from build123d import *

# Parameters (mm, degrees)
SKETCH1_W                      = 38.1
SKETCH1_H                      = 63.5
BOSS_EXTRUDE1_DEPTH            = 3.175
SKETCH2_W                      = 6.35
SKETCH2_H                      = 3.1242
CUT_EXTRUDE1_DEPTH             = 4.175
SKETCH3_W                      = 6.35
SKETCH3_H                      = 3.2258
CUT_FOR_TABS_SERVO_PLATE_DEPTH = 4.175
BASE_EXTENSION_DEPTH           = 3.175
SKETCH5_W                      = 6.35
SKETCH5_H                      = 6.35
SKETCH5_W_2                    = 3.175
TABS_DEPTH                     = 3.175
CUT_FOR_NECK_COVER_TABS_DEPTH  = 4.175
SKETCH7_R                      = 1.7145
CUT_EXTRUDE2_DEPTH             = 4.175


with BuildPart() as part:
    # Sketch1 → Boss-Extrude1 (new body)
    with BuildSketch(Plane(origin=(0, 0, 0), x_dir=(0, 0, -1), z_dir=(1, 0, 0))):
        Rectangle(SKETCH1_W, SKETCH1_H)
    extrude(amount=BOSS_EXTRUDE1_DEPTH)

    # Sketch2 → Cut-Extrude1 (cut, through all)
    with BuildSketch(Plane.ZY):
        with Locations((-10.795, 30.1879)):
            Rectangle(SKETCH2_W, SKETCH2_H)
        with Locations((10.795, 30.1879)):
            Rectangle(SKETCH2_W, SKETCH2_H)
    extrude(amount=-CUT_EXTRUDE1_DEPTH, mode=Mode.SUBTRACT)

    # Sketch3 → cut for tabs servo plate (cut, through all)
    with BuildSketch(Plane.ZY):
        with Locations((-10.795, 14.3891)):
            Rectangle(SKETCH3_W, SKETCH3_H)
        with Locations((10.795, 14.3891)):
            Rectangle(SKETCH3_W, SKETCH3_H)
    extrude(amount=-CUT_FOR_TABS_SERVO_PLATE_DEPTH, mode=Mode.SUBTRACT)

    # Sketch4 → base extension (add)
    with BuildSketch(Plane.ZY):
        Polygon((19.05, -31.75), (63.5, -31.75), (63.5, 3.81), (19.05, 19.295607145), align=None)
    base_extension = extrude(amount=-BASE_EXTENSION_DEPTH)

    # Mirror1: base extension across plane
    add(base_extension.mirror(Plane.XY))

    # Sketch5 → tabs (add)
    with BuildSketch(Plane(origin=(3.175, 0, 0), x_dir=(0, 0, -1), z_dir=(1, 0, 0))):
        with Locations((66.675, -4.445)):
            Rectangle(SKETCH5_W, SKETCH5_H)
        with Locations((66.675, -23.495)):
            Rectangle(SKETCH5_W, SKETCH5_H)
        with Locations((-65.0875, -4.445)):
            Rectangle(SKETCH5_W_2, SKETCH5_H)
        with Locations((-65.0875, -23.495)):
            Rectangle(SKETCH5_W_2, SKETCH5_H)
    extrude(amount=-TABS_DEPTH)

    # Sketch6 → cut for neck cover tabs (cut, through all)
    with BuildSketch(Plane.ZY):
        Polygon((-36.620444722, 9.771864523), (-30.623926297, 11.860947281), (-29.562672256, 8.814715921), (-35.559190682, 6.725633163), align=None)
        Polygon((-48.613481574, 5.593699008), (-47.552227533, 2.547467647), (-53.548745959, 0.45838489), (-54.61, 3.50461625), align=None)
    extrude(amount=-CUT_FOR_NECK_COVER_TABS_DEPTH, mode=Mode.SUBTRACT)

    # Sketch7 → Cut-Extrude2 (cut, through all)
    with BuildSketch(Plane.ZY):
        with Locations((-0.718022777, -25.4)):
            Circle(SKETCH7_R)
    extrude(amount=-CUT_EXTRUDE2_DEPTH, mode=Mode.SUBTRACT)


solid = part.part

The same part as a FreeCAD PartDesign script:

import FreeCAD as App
import Part
import Sketcher

V = App.Vector
Q = App.Units.Quantity


def add_polygon(sketch, points):
    """Adds a closed chain of lines whose ends are joined by coincident constraints."""
    first, n = sketch.GeometryCount, len(points)
    for a, b in zip(points, points[1:] + points[:1]):
        sketch.addGeometry(Part.LineSegment(App.Vector(*a, 0), App.Vector(*b, 0)), False)
    for i in range(n):
        sketch.addConstraint(Sketcher.Constraint("Coincident", first + i, 2, first + (i + 1) % n, 1))

doc = App.newDocument("Part")
body = doc.addObject("PartDesign::Body", "Body")

# Sketch on YZ plane
sketch1 = body.newObject("Sketcher::SketchObject", "Sketch")
sketch1.AttachmentSupport = (doc.getObject("YZ_Plane"), [""])
sketch1.MapMode = "FlatFace"
add_polygon(sketch1, [(32, 19), (-32, 19), (-32, -19), (32, -19)])  # lines 0-3
sketch1.addConstraint(Sketcher.Constraint("Horizontal", 0))
sketch1.addConstraint(Sketcher.Constraint("Vertical", 1))
sketch1.addConstraint(Sketcher.Constraint("Horizontal", 2))
sketch1.addConstraint(Sketcher.Constraint("Vertical", 3))
sketch1.addConstraint(Sketcher.Constraint("Symmetric", 0, 2, 2, 2, -1, 1))
sketch1.addConstraint(Sketcher.Constraint("DistanceX", 0, 2, 0, 1, Q("2.5 in")))
sketch1.addConstraint(Sketcher.Constraint("DistanceY", 1, 2, 1, 1, Q("1.5 in")))
pad1 = body.newObject("PartDesign::Pad", "Pad")
pad1.Profile = sketch1
pad1.Length = Q("0.125 in")

# Sketch on YZ plane
sketch2 = body.newObject("Sketcher::SketchObject", "Sketch001")
sketch2.AttachmentSupport = (doc.getObject("YZ_Plane"), [""])
sketch2.MapMode = "FlatFace"
add_polygon(sketch2, [(31.8, -14), (28.6, -14), (28.6, -7.6), (31.8, -7.6)])  # lines 0-3
add_polygon(sketch2, [(31.8, 7.6), (28.6, 7.6), (28.6, 14), (31.8, 14)])  # lines 4-7
sketch2.addConstraint(Sketcher.Constraint("Horizontal", 0))
sketch2.addConstraint(Sketcher.Constraint("Vertical", 1))
sketch2.addConstraint(Sketcher.Constraint("Horizontal", 2))
sketch2.addConstraint(Sketcher.Constraint("Vertical", 3))
sketch2.addConstraint(Sketcher.Constraint("Horizontal", 4))
sketch2.addConstraint(Sketcher.Constraint("Vertical", 5))
sketch2.addConstraint(Sketcher.Constraint("Horizontal", 6))
sketch2.addConstraint(Sketcher.Constraint("Vertical", 7))
sketch2.addConstraint(Sketcher.Constraint("Symmetric", 1, 2, 4, 2, -1))
sketch2.addConstraint(Sketcher.Constraint("Symmetric", 3, 2, 6, 2, -1))
sketch2.addConstraint(Sketcher.Constraint("DistanceY", 1, 1, 1, 2, Q("0.25 in")))
sketch2.addConstraint(Sketcher.Constraint("DistanceY", 1, 2, -1, 1, Q("0.3 in")))
sketch2.addConstraint(Sketcher.Constraint("DistanceX", 0, 2, 0, 1, Q("0.123 in")))
sketch2.addConstraint(Sketcher.Constraint("DistanceX", -1, 1, 2, 2, Q("1.25 in")))
pocket1 = body.newObject("PartDesign::Pocket", "Pocket")
pocket1.Profile = sketch2
pocket1.Type = "ThroughAll"
pocket1.Reversed = True

# Sketch on YZ plane
sketch3 = body.newObject("Sketcher::SketchObject", "Sketch002")
sketch3.AttachmentSupport = (doc.getObject("YZ_Plane"), [""])
sketch3.MapMode = "FlatFace"
add_polygon(sketch3, [(16, -14), (12.8, -14), (12.8, -7.6), (16, -7.6)])  # lines 0-3
add_polygon(sketch3, [(16, 7.6), (12.8, 7.6), (12.8, 14), (16, 14)])  # lines 4-7
sketch3.addConstraint(Sketcher.Constraint("Horizontal", 0))
sketch3.addConstraint(Sketcher.Constraint("Vertical", 1))
sketch3.addConstraint(Sketcher.Constraint("Horizontal", 2))
sketch3.addConstraint(Sketcher.Constraint("Vertical", 3))
sketch3.addConstraint(Sketcher.Constraint("Horizontal", 4))
sketch3.addConstraint(Sketcher.Constraint("Vertical", 5))
sketch3.addConstraint(Sketcher.Constraint("Horizontal", 6))
sketch3.addConstraint(Sketcher.Constraint("Vertical", 7))
sketch3.addConstraint(Sketcher.Constraint("Symmetric", 1, 2, 4, 2, -1))
sketch3.addConstraint(Sketcher.Constraint("Symmetric", 3, 2, 6, 2, -1))
sketch3.addConstraint(Sketcher.Constraint("DistanceY", 1, 1, 1, 2, Q("0.25 in")))
sketch3.addConstraint(Sketcher.Constraint("DistanceY", 1, 2, -1, 1, Q("0.3 in")))
sketch3.addConstraint(Sketcher.Constraint("DistanceX", 0, 2, 0, 1, Q("0.127 in")))
sketch3.addConstraint(Sketcher.Constraint("DistanceX", -1, 1, 2, 2, Q("0.63 in")))
pocket2 = body.newObject("PartDesign::Pocket", "Pocket001")
pocket2.Profile = sketch3
pocket2.Type = "ThroughAll"
pocket2.Reversed = True

# Sketch on YZ plane
sketch4 = body.newObject("Sketcher::SketchObject", "Sketch003")
sketch4.AttachmentSupport = (doc.getObject("YZ_Plane"), [""])
sketch4.MapMode = "FlatFace"
add_polygon(sketch4, [(-32, 19), (-32, 64), (4, 64), (19, 19)])  # lines 0-3
sketch4.addConstraint(Sketcher.Constraint("Vertical", 0))
sketch4.addConstraint(Sketcher.Constraint("Horizontal", 1))
sketch4.addConstraint(Sketcher.Constraint("Horizontal", 3))
sketch4.addConstraint(Sketcher.Constraint("DistanceX", 1, 1, 1, 2, Q("1.4 in")))
sketch4.addConstraint(Sketcher.Constraint("DistanceY", 0, 1, 0, 2, Q("1.75 in")))
sketch4.addConstraint(Sketcher.Constraint("DistanceY", -1, 1, 0, 2, Q("2.5 in")))
sketch4.addConstraint(Sketcher.Constraint("DistanceX", 0, 2, -1, 1, Q("1.25 in")))
sketch4.addConstraint(Sketcher.Constraint("Distance", 2, Q("47.07023 mm")))
pad2 = body.newObject("PartDesign::Pad", "Pad001")
pad2.Profile = sketch4
pad2.Length = Q("0.125 in")
doc.recompute()

mirrored = body.newObject("PartDesign::Mirrored", "Mirrored")
mirrored.Originals = [pad2]
mirrored.MirrorPlane = (doc.getObject("XY_Plane"), [""])
body.Tip = mirrored

# Sketch on YZ plane
sketch5 = body.newObject("Sketcher::SketchObject", "Sketch004")
sketch5.AttachmentSupport = (doc.getObject("YZ_Plane"), [""])
sketch5.MapMode = "FlatFace"
sketch5.AttachmentOffset = App.Placement(V(0, 0, 0.125 * 25.4), App.Rotation())
add_polygon(sketch5, [(-1.3, -63.5), (-7.6, -63.5), (-7.6, -69.8), (-1.3, -69.8)])  # lines 0-3
add_polygon(sketch5, [(-20.3, -63.5), (-26.7, -63.5), (-26.7, -69.8), (-20.3, -69.8)])  # lines 4-7
add_polygon(sketch5, [(-1.3, 66.7), (-7.6, 66.7), (-7.6, 63.5), (-1.3, 63.5)])  # lines 8-11
add_polygon(sketch5, [(-20.3, 66.7), (-26.7, 66.7), (-26.7, 63.5), (-20.3, 63.5)])  # lines 12-15
sketch5.addConstraint(Sketcher.Constraint("Horizontal", 0))
sketch5.addConstraint(Sketcher.Constraint("Vertical", 1))
sketch5.addConstraint(Sketcher.Constraint("Horizontal", 2))
sketch5.addConstraint(Sketcher.Constraint("Vertical", 3))
sketch5.addConstraint(Sketcher.Constraint("Horizontal", 4))
sketch5.addConstraint(Sketcher.Constraint("Vertical", 5))
sketch5.addConstraint(Sketcher.Constraint("Horizontal", 6))
sketch5.addConstraint(Sketcher.Constraint("Vertical", 7))
sketch5.addConstraint(Sketcher.Constraint("Horizontal", 8))
sketch5.addConstraint(Sketcher.Constraint("Vertical", 9))
sketch5.addConstraint(Sketcher.Constraint("Horizontal", 10))
sketch5.addConstraint(Sketcher.Constraint("Vertical", 11))
sketch5.addConstraint(Sketcher.Constraint("Horizontal", 12))
sketch5.addConstraint(Sketcher.Constraint("Vertical", 13))
sketch5.addConstraint(Sketcher.Constraint("Horizontal", 14))
sketch5.addConstraint(Sketcher.Constraint("Vertical", 15))
sketch5.addConstraint(Sketcher.Constraint("Symmetric", 0, 2, 9, 2, -1))
sketch5.addConstraint(Sketcher.Constraint("Symmetric", 4, 2, 13, 2, -1))
sketch5.addConstraint(Sketcher.Constraint("Horizontal", 3, 2, 4, 2))
sketch5.addConstraint(Sketcher.Constraint("Horizontal", 2, 2, 5, 2))
sketch5.addConstraint(Sketcher.Constraint("Horizontal", 11, 2, 12, 2))
sketch5.addConstraint(Sketcher.Constraint("Vertical", 3, 2, 10, 2))
sketch5.addConstraint(Sketcher.Constraint("Vertical", 7, 2, 14, 2))
sketch5.addConstraint(Sketcher.Constraint("Equal", 2, 4))
sketch5.addConstraint(Sketcher.Constraint("Equal", 14, 1))
sketch5.addConstraint(Sketcher.Constraint("DistanceX", 4, 2, 3, 2, Q("1 in")))
sketch5.addConstraint(Sketcher.Constraint("DistanceY", 0, 2, 9, 2, Q("5 in")))
sketch5.addConstraint(Sketcher.Constraint("DistanceX", 0, 2, 0, 1, Q("0.25 in")))
sketch5.addConstraint(Sketcher.Constraint("DistanceX", 0, 2, -1, 1, Q("0.3 in")))
sketch5.addConstraint(Sketcher.Constraint("DistanceY", 9, 2, 9, 1, Q("0.125 in")))
pad3 = body.newObject("PartDesign::Pad", "Pad002")
pad3.Profile = sketch5
pad3.Length = Q("0.125 in")
pad3.Reversed = True

# Sketch on YZ plane
sketch6 = body.newObject("Sketcher::SketchObject", "Sketch005")
sketch6.AttachmentSupport = (doc.getObject("YZ_Plane"), [""])
sketch6.MapMode = "FlatFace"
add_polygon(sketch6, [(11.9, -30.6), (9.8, -36.6), (6.7, -35.6), (8.8, -29.6)])  # lines 0-3
add_polygon(sketch6, [(2.5, -47.6), (5.6, -48.6), (3.5, -54.6), (0.5, -53.5)])  # lines 4-7
sketch6.addConstraint(Sketcher.Constraint("Perpendicular", 0, 1))
sketch6.addConstraint(Sketcher.Constraint("Perpendicular", 1, 2))
sketch6.addConstraint(Sketcher.Constraint("Perpendicular", 2, 3))
sketch6.addConstraint(Sketcher.Constraint("Parallel", 3, 4))
sketch6.addConstraint(Sketcher.Constraint("Perpendicular", 4, 5))
sketch6.addConstraint(Sketcher.Constraint("Perpendicular", 5, 6))
sketch6.addConstraint(Sketcher.Constraint("Perpendicular", 6, 7))
sketch6.addConstraint(Sketcher.Constraint("Equal", 3, 4))
sketch6.addConstraint(Sketcher.Constraint("Equal", 2, 5))
sketch6.addConstraint(Sketcher.Constraint("Distance", 0, Q("0.25 in")))
sketch6.addConstraint(Sketcher.Constraint("DistanceY", 5, 2, -1, 1, Q("2.15 in")))
sketch6.addConstraint(Sketcher.Constraint("Distance", 1, Q("0.127 in")))
sketch6.addConstraint(Sketcher.Constraint("DistanceX", -1, 1, 4, 2, Q("5.593699 mm")))
sketch6.addConstraint(Sketcher.Constraint("DistanceX", 5, 2, 2, 2, Q("5.3101 mm")))
sketch6.addConstraint(Sketcher.Constraint("DistanceY", 6, 2, 0, 2, Q("16.928301 mm")))
sketch6.addConstraint(Sketcher.Constraint("DistanceY", 1, 2, -1, 1, Q("35.559191 mm")))
pocket3 = body.newObject("PartDesign::Pocket", "Pocket002")
pocket3.Profile = sketch6
pocket3.Type = "ThroughAll"
pocket3.Reversed = True

# Sketch on YZ plane
sketch7 = body.newObject("Sketcher::SketchObject", "Sketch006")
sketch7.AttachmentSupport = (doc.getObject("YZ_Plane"), [""])
sketch7.MapMode = "FlatFace"
sketch7.addGeometry(Part.Circle(V(-25.4, -0.7, 0), V(0, 0, 1), 1.7), False)
sketch7.addConstraint(Sketcher.Constraint("Diameter", 0, Q("0.135 in")))
sketch7.addConstraint(Sketcher.Constraint("DistanceX", 0, 3, -1, 1, Q("1 in")))
sketch7.addConstraint(Sketcher.Constraint("DistanceY", 0, 3, -1, 1, Q("0.718023 mm")))
pocket4 = body.newObject("PartDesign::Pocket", "Pocket003")
pocket4.Profile = sketch7
pocket4.Type = "ThroughAll"
pocket4.Reversed = True

doc.recompute()
